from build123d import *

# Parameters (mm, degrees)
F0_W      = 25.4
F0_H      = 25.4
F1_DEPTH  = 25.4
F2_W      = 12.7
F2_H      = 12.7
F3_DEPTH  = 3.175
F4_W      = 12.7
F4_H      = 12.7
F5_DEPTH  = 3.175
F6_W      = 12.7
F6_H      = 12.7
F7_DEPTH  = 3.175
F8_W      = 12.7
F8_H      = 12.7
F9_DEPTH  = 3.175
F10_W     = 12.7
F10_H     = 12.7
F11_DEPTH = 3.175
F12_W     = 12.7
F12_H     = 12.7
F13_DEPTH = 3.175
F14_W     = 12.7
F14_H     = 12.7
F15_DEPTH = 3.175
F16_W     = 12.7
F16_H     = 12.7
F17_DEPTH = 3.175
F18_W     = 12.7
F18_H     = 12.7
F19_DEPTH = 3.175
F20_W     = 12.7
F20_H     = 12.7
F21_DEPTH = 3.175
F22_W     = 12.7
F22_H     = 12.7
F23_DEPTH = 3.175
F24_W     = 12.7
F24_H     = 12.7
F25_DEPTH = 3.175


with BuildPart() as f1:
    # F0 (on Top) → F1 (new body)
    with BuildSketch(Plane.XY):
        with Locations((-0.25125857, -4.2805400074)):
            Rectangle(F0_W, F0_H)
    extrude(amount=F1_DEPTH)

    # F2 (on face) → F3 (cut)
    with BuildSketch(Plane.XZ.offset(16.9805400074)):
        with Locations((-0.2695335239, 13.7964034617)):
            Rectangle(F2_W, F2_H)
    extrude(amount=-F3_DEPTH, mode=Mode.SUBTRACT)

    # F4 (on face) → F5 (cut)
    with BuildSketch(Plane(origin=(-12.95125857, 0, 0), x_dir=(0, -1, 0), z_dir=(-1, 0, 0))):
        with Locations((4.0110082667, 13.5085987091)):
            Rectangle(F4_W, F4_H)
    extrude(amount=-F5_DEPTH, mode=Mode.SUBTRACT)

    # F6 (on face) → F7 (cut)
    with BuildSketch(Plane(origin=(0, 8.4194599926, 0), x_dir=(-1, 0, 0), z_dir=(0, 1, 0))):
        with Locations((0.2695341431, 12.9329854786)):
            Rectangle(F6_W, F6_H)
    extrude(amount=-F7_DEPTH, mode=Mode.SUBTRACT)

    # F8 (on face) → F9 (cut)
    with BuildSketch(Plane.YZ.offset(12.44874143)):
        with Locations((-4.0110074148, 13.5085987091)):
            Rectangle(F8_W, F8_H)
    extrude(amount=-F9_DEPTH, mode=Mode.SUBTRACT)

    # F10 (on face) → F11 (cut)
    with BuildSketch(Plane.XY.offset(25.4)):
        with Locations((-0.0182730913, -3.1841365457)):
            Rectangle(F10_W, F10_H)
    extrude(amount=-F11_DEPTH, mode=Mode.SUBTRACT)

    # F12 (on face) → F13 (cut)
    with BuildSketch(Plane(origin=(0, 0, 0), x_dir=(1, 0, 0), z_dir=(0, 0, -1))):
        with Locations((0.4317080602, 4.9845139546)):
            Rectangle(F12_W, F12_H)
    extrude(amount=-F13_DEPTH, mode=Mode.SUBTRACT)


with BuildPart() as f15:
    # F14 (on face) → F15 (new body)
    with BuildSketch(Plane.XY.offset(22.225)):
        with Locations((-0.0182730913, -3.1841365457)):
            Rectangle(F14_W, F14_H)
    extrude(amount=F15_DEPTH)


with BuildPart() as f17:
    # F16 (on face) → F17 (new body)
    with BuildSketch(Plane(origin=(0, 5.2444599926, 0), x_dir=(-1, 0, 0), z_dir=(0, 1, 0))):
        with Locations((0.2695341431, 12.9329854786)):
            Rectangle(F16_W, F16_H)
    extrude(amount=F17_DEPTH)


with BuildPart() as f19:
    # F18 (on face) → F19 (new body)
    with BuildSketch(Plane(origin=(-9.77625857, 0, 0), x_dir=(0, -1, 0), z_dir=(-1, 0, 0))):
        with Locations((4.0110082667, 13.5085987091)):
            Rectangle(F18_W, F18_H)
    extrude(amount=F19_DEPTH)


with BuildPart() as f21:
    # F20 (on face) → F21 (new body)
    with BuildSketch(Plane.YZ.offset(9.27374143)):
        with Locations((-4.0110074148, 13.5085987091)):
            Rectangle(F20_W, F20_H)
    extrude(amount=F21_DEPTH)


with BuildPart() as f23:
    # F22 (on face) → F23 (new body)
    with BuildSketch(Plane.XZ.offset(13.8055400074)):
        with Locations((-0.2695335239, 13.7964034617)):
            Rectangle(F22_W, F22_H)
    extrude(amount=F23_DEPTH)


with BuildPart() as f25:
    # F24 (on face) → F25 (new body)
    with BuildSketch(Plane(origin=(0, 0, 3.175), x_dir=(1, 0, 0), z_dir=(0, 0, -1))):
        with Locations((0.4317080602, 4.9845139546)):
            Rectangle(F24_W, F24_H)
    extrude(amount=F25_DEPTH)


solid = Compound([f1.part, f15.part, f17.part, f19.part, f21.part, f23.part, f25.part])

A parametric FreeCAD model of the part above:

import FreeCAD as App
import Part
import Sketcher
Q = App.Units.Quantity


def add_polygon(sketch, points):
    """Adds a closed chain of lines whose ends are joined by coincident constraints."""
    first, n = sketch.GeometryCount, len(points)
    for a, b in zip(points, points[1:] + points[:1]):
        sketch.addGeometry(Part.LineSegment(App.Vector(*a, 0), App.Vector(*b, 0)), False)
    for i in range(n):
        sketch.addConstraint(Sketcher.Constraint("Coincident", first + i, 2, first + (i + 1) % n, 1))

doc = App.newDocument("Part")
params = doc.addObject("Spreadsheet::Sheet", "Params")
for row, (alias, value) in enumerate([
    ("sketch1_width", "1 in"),
    ("pad1_length", "1 in"),
    ("sketch2_width", "0.5 in"),
    ("pocket1_length", "0.125 in"),
    ("sketch3_width", "0.5 in"),
    ("pocket2_length", "0.125 in"),
    ("sketch4_width", "0.5 in"),
    ("pocket3_length", "0.125 in"),
    ("sketch5_width", "0.5 in"),
    ("pocket4_length", "0.125 in"),
    ("sketch6_width", "0.5 in"),
    ("pocket5_length", "0.125 in"),
    ("sketch7_width", "0.5 in"),
    ("pocket6_length", "0.125 in"),
    ("sketch8_width", "0.5 in"),
    ("pad2_length", "0.125 in"),
    ("sketch9_width", "0.5 in"),
    ("pad3_length", "0.125 in"),
    ("sketch10_width", "0.5 in"),
    ("pad4_length", "0.125 in"),
    ("sketch11_width", "0.5 in"),
    ("pad5_length", "0.125 in"),
    ("sketch12_width", "0.5 in"),
    ("pad6_length", "0.125 in"),
    ("sketch13_width", "0.5 in"),
    ("pad7_length", "0.125 in"),
], start=1):
    params.set(f"A{row}", alias)
    params.set(f"B{row}", "=" + value)
    params.setAlias(f"B{row}", alias)

body = doc.addObject("PartDesign::Body", "Body")

# Sketch on XY plane
sketch1 = doc.addObject("Sketcher::SketchObject", "Sketch")
body.addObject(sketch1)
sketch1.AttachmentSupport = (doc.XY_Plane, [""])
sketch1.MapMode = "FlatFace"
add_polygon(sketch1, [(-12.951259, 8.41946), (-12.951259, -16.98054), (12.448741, -16.98054), (12.448741, 8.41946)])  # lines 0-3
sketch1.addConstraint(Sketcher.Constraint("Vertical", 0))
sketch1.addConstraint(Sketcher.Constraint("Horizontal", 1))
sketch1.addConstraint(Sketcher.Constraint("Vertical", 2))
sketch1.addConstraint(Sketcher.Constraint("Horizontal", 3))
sketch1.addConstraint(Sketcher.Constraint("Equal", 3, 0))
sketch1.addConstraint(Sketcher.Constraint("DistanceX", 1, 1, 1, 2, Q("1 in")))
sketch1.addConstraint(Sketcher.Constraint("DistanceX", 0, 2, -1, 1, 12.951259))
sketch1.addConstraint(Sketcher.Constraint("DistanceY", 0, 2, -1, 1, 16.98054))
sketch1.setExpression("Constraints[9]", "Params.sketch1_width")
pad1 = doc.addObject("PartDesign::Pad", "Pad")
body.addObject(pad1)
pad1.Profile = sketch1
pad1.setExpression("Length", "Params.pad1_length")

# Sketch on XZ plane
sketch2 = doc.addObject("Sketcher::SketchObject", "Sketch001")
body.addObject(sketch2)
sketch2.AttachmentSupport = (doc.XZ_Plane, [""])
sketch2.MapMode = "FlatFace"
sketch2.AttachmentOffset = App.Placement(App.Vector(0, 0, 16.98054), App.Rotation())
add_polygon(sketch2, [(-6.619534, 20.146403), (-6.619534, 7.446403), (6.080466, 7.446403), (6.080466, 20.146403)])  # lines 0-3
sketch2.addConstraint(Sketcher.Constraint("Vertical", 0))
sketch2.addConstraint(Sketcher.Constraint("Horizontal", 1))
sketch2.addConstraint(Sketcher.Constraint("Vertical", 2))
sketch2.addConstraint(Sketcher.Constraint("Horizontal", 3))
sketch2.addConstraint(Sketcher.Constraint("Equal", 3, 0))
sketch2.addConstraint(Sketcher.Constraint("DistanceX", 1, 1, 1, 2, Q("0.5 in")))
sketch2.addConstraint(Sketcher.Constraint("DistanceX", 0, 2, -1, 1, 6.619534))
sketch2.addConstraint(Sketcher.Constraint("DistanceY", -1, 1, 0, 2, 7.446403))
sketch2.setExpression("Constraints[9]", "Params.sketch2_width")
pocket1 = doc.addObject("PartDesign::Pocket", "Pocket")
body.addObject(pocket1)
pocket1.Profile = sketch2
pocket1.setExpression("Length", "Params.pocket1_length")

# Sketch on YZ plane
sketch3 = doc.addObject("Sketcher::SketchObject", "Sketch002")
body.addObject(sketch3)
sketch3.AttachmentSupport = (doc.YZ_Plane, [""])
sketch3.MapMode = "FlatFace"
sketch3.AttachmentOffset = App.Placement(App.Vector(0, 0, -12.951259), App.Rotation())
add_polygon(sketch3, [(2.338992, 19.858599), (2.338992, 7.158599), (-10.361008, 7.158599), (-10.361008, 19.858599)])  # lines 0-3
sketch3.addConstraint(Sketcher.Constraint("Vertical", 0))
sketch3.addConstraint(Sketcher.Constraint("Horizontal", 1))
sketch3.addConstraint(Sketcher.Constraint("Vertical", 2))
sketch3.addConstraint(Sketcher.Constraint("Horizontal", 3))
sketch3.addConstraint(Sketcher.Constraint("Equal", 3, 0))
sketch3.addConstraint(Sketcher.Constraint("DistanceX", 1, 2, 1, 1, Q("0.5 in")))
sketch3.addConstraint(Sketcher.Constraint("DistanceY", -1, 1, 0, 2, 7.158599))
sketch3.addConstraint(Sketcher.Constraint("DistanceX", -1, 1, 0, 2, 2.338992))
sketch3.setExpression("Constraints[9]", "Params.sketch3_width")
pocket2 = doc.addObject("PartDesign::Pocket", "Pocket001")
body.addObject(pocket2)
pocket2.Profile = sketch3
pocket2.setExpression("Length", "Params.pocket2_length")
pocket2.Reversed = True

# Sketch on XZ plane
sketch4 = doc.addObject("Sketcher::SketchObject", "Sketch003")
body.addObject(sketch4)
sketch4.AttachmentSupport = (doc.XZ_Plane, [""])
sketch4.MapMode = "FlatFace"
sketch4.AttachmentOffset = App.Placement(App.Vector(0, 0, -8.41946), App.Rotation())
add_polygon(sketch4, [(6.080466, 19.282985), (6.080466, 6.582985), (-6.619534, 6.582985), (-6.619534, 19.282985)])  # lines 0-3
sketch4.addConstraint(Sketcher.Constraint("Vertical", 0))
sketch4.addConstraint(Sketcher.Constraint("Horizontal", 1))
sketch4.addConstraint(Sketcher.Constraint("Vertical", 2))
sketch4.addConstraint(Sketcher.Constraint("Horizontal", 3))
sketch4.addConstraint(Sketcher.Constraint("Equal", 3, 0))
sketch4.addConstraint(Sketcher.Constraint("DistanceX", 1, 2, 1, 1, Q("0.5 in")))
sketch4.addConstraint(Sketcher.Constraint("DistanceX", -1, 1, 0, 2, 6.080466))
sketch4.addConstraint(Sketcher.Constraint("DistanceY", -1, 1, 0, 2, 6.582985))
sketch4.setExpression("Constraints[9]", "Params.sketch4_width")
pocket3 = doc.addObject("PartDesign::Pocket", "Pocket002")
body.addObject(pocket3)
pocket3.Profile = sketch4
pocket3.setExpression("Length", "Params.pocket3_length")
pocket3.Reversed = True

# Sketch on YZ plane
sketch5 = doc.addObject("Sketcher::SketchObject", "Sketch004")
body.addObject(sketch5)
sketch5.AttachmentSupport = (doc.YZ_Plane, [""])
sketch5.MapMode = "FlatFace"
sketch5.AttachmentOffset = App.Placement(App.Vector(0, 0, 12.448741), App.Rotation())
add_polygon(sketch5, [(-10.361007, 19.858599), (-10.361007, 7.158599), (2.338993, 7.158599), (2.338993, 19.858599)])  # lines 0-3
sketch5.addConstraint(Sketcher.Constraint("Vertical", 0))
sketch5.addConstraint(Sketcher.Constraint("Horizontal", 1))
sketch5.addConstraint(Sketcher.Constraint("Vertical", 2))
sketch5.addConstraint(Sketcher.Constraint("Horizontal", 3))
sketch5.addConstraint(Sketcher.Constraint("Equal", 3, 0))
sketch5.addConstraint(Sketcher.Constraint("DistanceX", 1, 1, 1, 2, Q("0.5 in")))
sketch5.addConstraint(Sketcher.Constraint("DistanceY", -1, 1, 0, 2, 7.158599))
sketch5.addConstraint(Sketcher.Constraint("DistanceX", 0, 2, -1, 1, 10.361007))
sketch5.setExpression("Constraints[9]", "Params.sketch5_width")
pocket4 = doc.addObject("PartDesign::Pocket", "Pocket003")
body.addObject(pocket4)
pocket4.Profile = sketch5
pocket4.setExpression("Length", "Params.pocket4_length")

# Sketch on XY plane
sketch6 = doc.addObject("Sketcher::SketchObject", "Sketch005")
body.addObject(sketch6)
sketch6.AttachmentSupport = (doc.XY_Plane, [""])
sketch6.MapMode = "FlatFace"
sketch6.AttachmentOffset = App.Placement(App.Vector(0, 0, 1 * 25.4), App.Rotation())
add_polygon(sketch6, [(-6.368273, 3.165863), (-6.368273, -9.534137), (6.331727, -9.534137), (6.331727, 3.165863)])  # lines 0-3
sketch6.addConstraint(Sketcher.Constraint("Vertical", 0))
sketch6.addConstraint(Sketcher.Constraint("Horizontal", 1))
sketch6.addConstraint(Sketcher.Constraint("Vertical", 2))
sketch6.addConstraint(Sketcher.Constraint("Horizontal", 3))
sketch6.addConstraint(Sketcher.Constraint("Equal", 3, 0))
sketch6.addConstraint(Sketcher.Constraint("DistanceX", 1, 1, 1, 2, Q("0.5 in")))
sketch6.addConstraint(Sketcher.Constraint("DistanceX", 0, 2, -1, 1, 6.368273))
sketch6.addConstraint(Sketcher.Constraint("DistanceY", 0, 2, -1, 1, 9.534137))
sketch6.setExpression("Constraints[9]", "Params.sketch6_width")
pocket5 = doc.addObject("PartDesign::Pocket", "Pocket004")
body.addObject(pocket5)
pocket5.Profile = sketch6
pocket5.setExpression("Length", "Params.pocket5_length")

# Sketch on XY plane
sketch7 = doc.addObject("Sketcher::SketchObject", "Sketch006")
body.addObject(sketch7)
sketch7.AttachmentSupport = (doc.XY_Plane, [""])
sketch7.MapMode = "FlatFace"
add_polygon(sketch7, [(-5.918292, -11.334514), (-5.918292, 1.365486), (6.781708, 1.365486), (6.781708, -11.334514)])  # lines 0-3
sketch7.addConstraint(Sketcher.Constraint("Vertical", 0))
sketch7.addConstraint(Sketcher.Constraint("Horizontal", 1))
sketch7.addConstraint(Sketcher.Constraint("Vertical", 2))
sketch7.addConstraint(Sketcher.Constraint("Horizontal", 3))
sketch7.addConstraint(Sketcher.Constraint("Equal", 3, 0))
sketch7.addConstraint(Sketcher.Constraint("DistanceX", 1, 1, 1, 2, Q("0.5 in")))
sketch7.addConstraint(Sketcher.Constraint("DistanceX", 0, 2, -1, 1, 5.918292))
sketch7.addConstraint(Sketcher.Constraint("DistanceY", -1, 1, 0, 2, 1.365486))
sketch7.setExpression("Constraints[9]", "Params.sketch7_width")
pocket6 = doc.addObject("PartDesign::Pocket", "Pocket005")
body.addObject(pocket6)
pocket6.Profile = sketch7
pocket6.setExpression("Length", "Params.pocket6_length")
pocket6.Reversed = True
body2 = doc.addObject("PartDesign::Body", "Body001")

# Sketch on XY plane
sketch8 = doc.addObject("Sketcher::SketchObject", "Sketch007")
body2.addObject(sketch8)
sketch8.AttachmentSupport = (doc.getObject("XY_Plane001"), [""])
sketch8.MapMode = "FlatFace"
sketch8.AttachmentOffset = App.Placement(App.Vector(0, 0, 0.875 * 25.4), App.Rotation())
add_polygon(sketch8, [(-6.368273, 3.165863), (-6.368273, -9.534137), (6.331727, -9.534137), (6.331727, 3.165863)])  # lines 0-3
sketch8.addConstraint(Sketcher.Constraint("Vertical", 0))
sketch8.addConstraint(Sketcher.Constraint("Horizontal", 1))
sketch8.addConstraint(Sketcher.Constraint("Vertical", 2))
sketch8.addConstraint(Sketcher.Constraint("Horizontal", 3))
sketch8.addConstraint(Sketcher.Constraint("Equal", 3, 0))
sketch8.addConstraint(Sketcher.Constraint("DistanceX", 1, 1, 1, 2, Q("0.5 in")))
sketch8.addConstraint(Sketcher.Constraint("DistanceX", 0, 2, -1, 1, 6.368273))
sketch8.addConstraint(Sketcher.Constraint("DistanceY", 0, 2, -1, 1, 9.534137))
sketch8.setExpression("Constraints[9]", "Params.sketch8_width")
pad2 = doc.addObject("PartDesign::Pad", "Pad001")
body2.addObject(pad2)
pad2.Profile = sketch8
pad2.setExpression("Length", "Params.pad2_length")
body3 = doc.addObject("PartDesign::Body", "Body002")

# Sketch on XZ plane
sketch9 = doc.addObject("Sketcher::SketchObject", "Sketch008")
body3.addObject(sketch9)
sketch9.AttachmentSupport = (doc.getObject("XZ_Plane002"), [""])
sketch9.MapMode = "FlatFace"
sketch9.AttachmentOffset = App.Placement(App.Vector(0, 0, -5.24446), App.Rotation())
add_polygon(sketch9, [(6.080466, 19.282985), (6.080466, 6.582985), (-6.619534, 6.582985), (-6.619534, 19.282985)])  # lines 0-3
sketch9.addConstraint(Sketcher.Constraint("Vertical", 0))
sketch9.addConstraint(Sketcher.Constraint("Horizontal", 1))
sketch9.addConstraint(Sketcher.Constraint("Vertical", 2))
sketch9.addConstraint(Sketcher.Constraint("Horizontal", 3))
sketch9.addConstraint(Sketcher.Constraint("Equal", 3, 0))
sketch9.addConstraint(Sketcher.Constraint("DistanceX", 1, 2, 1, 1, Q("0.5 in")))
sketch9.addConstraint(Sketcher.Constraint("DistanceX", -1, 1, 0, 2, 6.080466))
sketch9.addConstraint(Sketcher.Constraint("DistanceY", -1, 1, 0, 2, 6.582985))
sketch9.setExpression("Constraints[9]", "Params.sketch9_width")
pad3 = doc.addObject("PartDesign::Pad", "Pad002")
body3.addObject(pad3)
pad3.Profile = sketch9
pad3.setExpression("Length", "Params.pad3_length")
pad3.Reversed = True
body4 = doc.addObject("PartDesign::Body", "Body003")

# Sketch on YZ plane
sketch10 = doc.addObject("Sketcher::SketchObject", "Sketch009")
body4.addObject(sketch10)
sketch10.AttachmentSupport = (doc.getObject("YZ_Plane003"), [""])
sketch10.MapMode = "FlatFace"
sketch10.AttachmentOffset = App.Placement(App.Vector(0, 0, -9.776259), App.Rotation())
add_polygon(sketch10, [(2.338992, 19.858599), (2.338992, 7.158599), (-10.361008, 7.158599), (-10.361008, 19.858599)])  # lines 0-3
sketch10.addConstraint(Sketcher.Constraint("Vertical", 0))
sketch10.addConstraint(Sketcher.Constraint("Horizontal", 1))
sketch10.addConstraint(Sketcher.Constraint("Vertical", 2))
sketch10.addConstraint(Sketcher.Constraint("Horizontal", 3))
sketch10.addConstraint(Sketcher.Constraint("Equal", 3, 0))
sketch10.addConstraint(Sketcher.Constraint("DistanceX", 1, 2, 1, 1, Q("0.5 in")))
sketch10.addConstraint(Sketcher.Constraint("DistanceY", -1, 1, 0, 2, 7.158599))
sketch10.addConstraint(Sketcher.Constraint("DistanceX", -1, 1, 0, 2, 2.338992))
sketch10.setExpression("Constraints[9]", "Params.sketch10_width")
pad4 = doc.addObject("PartDesign::Pad", "Pad003")
body4.addObject(pad4)
pad4.Profile = sketch10
pad4.setExpression("Length", "Params.pad4_length")
pad4.Reversed = True
body5 = doc.addObject("PartDesign::Body", "Body004")

# Sketch on YZ plane
sketch11 = doc.addObject("Sketcher::SketchObject", "Sketch010")
body5.addObject(sketch11)
sketch11.AttachmentSupport = (doc.getObject("YZ_Plane004"), [""])
sketch11.MapMode = "FlatFace"
sketch11.AttachmentOffset = App.Placement(App.Vector(0, 0, 9.273741), App.Rotation())
add_polygon(sketch11, [(-10.361007, 19.858599), (-10.361007, 7.158599), (2.338993, 7.158599), (2.338993, 19.858599)])  # lines 0-3
sketch11.addConstraint(Sketcher.Constraint("Vertical", 0))
sketch11.addConstraint(Sketcher.Constraint("Horizontal", 1))
sketch11.addConstraint(Sketcher.Constraint("Vertical", 2))
sketch11.addConstraint(Sketcher.Constraint("Horizontal", 3))
sketch11.addConstraint(Sketcher.Constraint("Equal", 3, 0))
sketch11.addConstraint(Sketcher.Constraint("DistanceX", 1, 1, 1, 2, Q("0.5 in")))
sketch11.addConstraint(Sketcher.Constraint("DistanceY", -1, 1, 0, 2, 7.158599))
sketch11.addConstraint(Sketcher.Constraint("DistanceX", 0, 2, -1, 1, 10.361007))
sketch11.setExpression("Constraints[9]", "Params.sketch11_width")
pad5 = doc.addObject("PartDesign::Pad", "Pad004")
body5.addObject(pad5)
pad5.Profile = sketch11
pad5.setExpression("Length", "Params.pad5_length")
body6 = doc.addObject("PartDesign::Body", "Body005")

# Sketch on XZ plane
sketch12 = doc.addObject("Sketcher::SketchObject", "Sketch011")
body6.addObject(sketch12)
sketch12.AttachmentSupport = (doc.getObject("XZ_Plane005"), [""])
sketch12.MapMode = "FlatFace"
sketch12.AttachmentOffset = App.Placement(App.Vector(0, 0, 13.80554), App.Rotation())
add_polygon(sketch12, [(-6.619534, 20.146403), (-6.619534, 7.446403), (6.080466, 7.446403), (6.080466, 20.146403)])  # lines 0-3
sketch12.addConstraint(Sketcher.Constraint("Vertical", 0))
sketch12.addConstraint(Sketcher.Constraint("Horizontal", 1))
sketch12.addConstraint(Sketcher.Constraint("Vertical", 2))
sketch12.addConstraint(Sketcher.Constraint("Horizontal", 3))
sketch12.addConstraint(Sketcher.Constraint("Equal", 3, 0))
sketch12.addConstraint(Sketcher.Constraint("DistanceX", 1, 1, 1, 2, Q("0.5 in")))
sketch12.addConstraint(Sketcher.Constraint("DistanceX", 0, 2, -1, 1, 6.619534))
sketch12.addConstraint(Sketcher.Constraint("DistanceY", -1, 1, 0, 2, 7.446403))
sketch12.setExpression("Constraints[9]", "Params.sketch12_width")
pad6 = doc.addObject("PartDesign::Pad", "Pad005")
body6.addObject(pad6)
pad6.Profile = sketch12
pad6.setExpression("Length", "Params.pad6_length")
body7 = doc.addObject("PartDesign::Body", "Body006")

# Sketch on XY plane
sketch13 = doc.addObject("Sketcher::SketchObject", "Sketch012")
body7.addObject(sketch13)
sketch13.AttachmentSupport = (doc.getObject("XY_Plane006"), [""])
sketch13.MapMode = "FlatFace"
sketch13.AttachmentOffset = App.Placement(App.Vector(0, 0, 0.125 * 25.4), App.Rotation())
add_polygon(sketch13, [(-5.918292, -11.334514), (-5.918292, 1.365486), (6.781708, 1.365486), (6.781708, -11.334514)])  # lines 0-3
sketch13.addConstraint(Sketcher.Constraint("Vertical", 0))
sketch13.addConstraint(Sketcher.Constraint("Horizontal", 1))
sketch13.addConstraint(Sketcher.Constraint("Vertical", 2))
sketch13.addConstraint(Sketcher.Constraint("Horizontal", 3))
sketch13.addConstraint(Sketcher.Constraint("Equal", 3, 0))
sketch13.addConstraint(Sketcher.Constraint("DistanceX", 1, 1, 1, 2, Q("0.5 in")))
sketch13.addConstraint(Sketcher.Constraint("DistanceX", 0, 2, -1, 1, 5.918292))
sketch13.addConstraint(Sketcher.Constraint("DistanceY", -1, 1, 0, 2, 1.365486))
sketch13.setExpression("Constraints[9]", "Params.sketch13_width")
pad7 = doc.addObject("PartDesign::Pad", "Pad006")
body7.addObject(pad7)
pad7.Profile = sketch13
pad7.setExpression("Length", "Params.pad7_length")
pad7.Reversed = True

doc.recompute()
